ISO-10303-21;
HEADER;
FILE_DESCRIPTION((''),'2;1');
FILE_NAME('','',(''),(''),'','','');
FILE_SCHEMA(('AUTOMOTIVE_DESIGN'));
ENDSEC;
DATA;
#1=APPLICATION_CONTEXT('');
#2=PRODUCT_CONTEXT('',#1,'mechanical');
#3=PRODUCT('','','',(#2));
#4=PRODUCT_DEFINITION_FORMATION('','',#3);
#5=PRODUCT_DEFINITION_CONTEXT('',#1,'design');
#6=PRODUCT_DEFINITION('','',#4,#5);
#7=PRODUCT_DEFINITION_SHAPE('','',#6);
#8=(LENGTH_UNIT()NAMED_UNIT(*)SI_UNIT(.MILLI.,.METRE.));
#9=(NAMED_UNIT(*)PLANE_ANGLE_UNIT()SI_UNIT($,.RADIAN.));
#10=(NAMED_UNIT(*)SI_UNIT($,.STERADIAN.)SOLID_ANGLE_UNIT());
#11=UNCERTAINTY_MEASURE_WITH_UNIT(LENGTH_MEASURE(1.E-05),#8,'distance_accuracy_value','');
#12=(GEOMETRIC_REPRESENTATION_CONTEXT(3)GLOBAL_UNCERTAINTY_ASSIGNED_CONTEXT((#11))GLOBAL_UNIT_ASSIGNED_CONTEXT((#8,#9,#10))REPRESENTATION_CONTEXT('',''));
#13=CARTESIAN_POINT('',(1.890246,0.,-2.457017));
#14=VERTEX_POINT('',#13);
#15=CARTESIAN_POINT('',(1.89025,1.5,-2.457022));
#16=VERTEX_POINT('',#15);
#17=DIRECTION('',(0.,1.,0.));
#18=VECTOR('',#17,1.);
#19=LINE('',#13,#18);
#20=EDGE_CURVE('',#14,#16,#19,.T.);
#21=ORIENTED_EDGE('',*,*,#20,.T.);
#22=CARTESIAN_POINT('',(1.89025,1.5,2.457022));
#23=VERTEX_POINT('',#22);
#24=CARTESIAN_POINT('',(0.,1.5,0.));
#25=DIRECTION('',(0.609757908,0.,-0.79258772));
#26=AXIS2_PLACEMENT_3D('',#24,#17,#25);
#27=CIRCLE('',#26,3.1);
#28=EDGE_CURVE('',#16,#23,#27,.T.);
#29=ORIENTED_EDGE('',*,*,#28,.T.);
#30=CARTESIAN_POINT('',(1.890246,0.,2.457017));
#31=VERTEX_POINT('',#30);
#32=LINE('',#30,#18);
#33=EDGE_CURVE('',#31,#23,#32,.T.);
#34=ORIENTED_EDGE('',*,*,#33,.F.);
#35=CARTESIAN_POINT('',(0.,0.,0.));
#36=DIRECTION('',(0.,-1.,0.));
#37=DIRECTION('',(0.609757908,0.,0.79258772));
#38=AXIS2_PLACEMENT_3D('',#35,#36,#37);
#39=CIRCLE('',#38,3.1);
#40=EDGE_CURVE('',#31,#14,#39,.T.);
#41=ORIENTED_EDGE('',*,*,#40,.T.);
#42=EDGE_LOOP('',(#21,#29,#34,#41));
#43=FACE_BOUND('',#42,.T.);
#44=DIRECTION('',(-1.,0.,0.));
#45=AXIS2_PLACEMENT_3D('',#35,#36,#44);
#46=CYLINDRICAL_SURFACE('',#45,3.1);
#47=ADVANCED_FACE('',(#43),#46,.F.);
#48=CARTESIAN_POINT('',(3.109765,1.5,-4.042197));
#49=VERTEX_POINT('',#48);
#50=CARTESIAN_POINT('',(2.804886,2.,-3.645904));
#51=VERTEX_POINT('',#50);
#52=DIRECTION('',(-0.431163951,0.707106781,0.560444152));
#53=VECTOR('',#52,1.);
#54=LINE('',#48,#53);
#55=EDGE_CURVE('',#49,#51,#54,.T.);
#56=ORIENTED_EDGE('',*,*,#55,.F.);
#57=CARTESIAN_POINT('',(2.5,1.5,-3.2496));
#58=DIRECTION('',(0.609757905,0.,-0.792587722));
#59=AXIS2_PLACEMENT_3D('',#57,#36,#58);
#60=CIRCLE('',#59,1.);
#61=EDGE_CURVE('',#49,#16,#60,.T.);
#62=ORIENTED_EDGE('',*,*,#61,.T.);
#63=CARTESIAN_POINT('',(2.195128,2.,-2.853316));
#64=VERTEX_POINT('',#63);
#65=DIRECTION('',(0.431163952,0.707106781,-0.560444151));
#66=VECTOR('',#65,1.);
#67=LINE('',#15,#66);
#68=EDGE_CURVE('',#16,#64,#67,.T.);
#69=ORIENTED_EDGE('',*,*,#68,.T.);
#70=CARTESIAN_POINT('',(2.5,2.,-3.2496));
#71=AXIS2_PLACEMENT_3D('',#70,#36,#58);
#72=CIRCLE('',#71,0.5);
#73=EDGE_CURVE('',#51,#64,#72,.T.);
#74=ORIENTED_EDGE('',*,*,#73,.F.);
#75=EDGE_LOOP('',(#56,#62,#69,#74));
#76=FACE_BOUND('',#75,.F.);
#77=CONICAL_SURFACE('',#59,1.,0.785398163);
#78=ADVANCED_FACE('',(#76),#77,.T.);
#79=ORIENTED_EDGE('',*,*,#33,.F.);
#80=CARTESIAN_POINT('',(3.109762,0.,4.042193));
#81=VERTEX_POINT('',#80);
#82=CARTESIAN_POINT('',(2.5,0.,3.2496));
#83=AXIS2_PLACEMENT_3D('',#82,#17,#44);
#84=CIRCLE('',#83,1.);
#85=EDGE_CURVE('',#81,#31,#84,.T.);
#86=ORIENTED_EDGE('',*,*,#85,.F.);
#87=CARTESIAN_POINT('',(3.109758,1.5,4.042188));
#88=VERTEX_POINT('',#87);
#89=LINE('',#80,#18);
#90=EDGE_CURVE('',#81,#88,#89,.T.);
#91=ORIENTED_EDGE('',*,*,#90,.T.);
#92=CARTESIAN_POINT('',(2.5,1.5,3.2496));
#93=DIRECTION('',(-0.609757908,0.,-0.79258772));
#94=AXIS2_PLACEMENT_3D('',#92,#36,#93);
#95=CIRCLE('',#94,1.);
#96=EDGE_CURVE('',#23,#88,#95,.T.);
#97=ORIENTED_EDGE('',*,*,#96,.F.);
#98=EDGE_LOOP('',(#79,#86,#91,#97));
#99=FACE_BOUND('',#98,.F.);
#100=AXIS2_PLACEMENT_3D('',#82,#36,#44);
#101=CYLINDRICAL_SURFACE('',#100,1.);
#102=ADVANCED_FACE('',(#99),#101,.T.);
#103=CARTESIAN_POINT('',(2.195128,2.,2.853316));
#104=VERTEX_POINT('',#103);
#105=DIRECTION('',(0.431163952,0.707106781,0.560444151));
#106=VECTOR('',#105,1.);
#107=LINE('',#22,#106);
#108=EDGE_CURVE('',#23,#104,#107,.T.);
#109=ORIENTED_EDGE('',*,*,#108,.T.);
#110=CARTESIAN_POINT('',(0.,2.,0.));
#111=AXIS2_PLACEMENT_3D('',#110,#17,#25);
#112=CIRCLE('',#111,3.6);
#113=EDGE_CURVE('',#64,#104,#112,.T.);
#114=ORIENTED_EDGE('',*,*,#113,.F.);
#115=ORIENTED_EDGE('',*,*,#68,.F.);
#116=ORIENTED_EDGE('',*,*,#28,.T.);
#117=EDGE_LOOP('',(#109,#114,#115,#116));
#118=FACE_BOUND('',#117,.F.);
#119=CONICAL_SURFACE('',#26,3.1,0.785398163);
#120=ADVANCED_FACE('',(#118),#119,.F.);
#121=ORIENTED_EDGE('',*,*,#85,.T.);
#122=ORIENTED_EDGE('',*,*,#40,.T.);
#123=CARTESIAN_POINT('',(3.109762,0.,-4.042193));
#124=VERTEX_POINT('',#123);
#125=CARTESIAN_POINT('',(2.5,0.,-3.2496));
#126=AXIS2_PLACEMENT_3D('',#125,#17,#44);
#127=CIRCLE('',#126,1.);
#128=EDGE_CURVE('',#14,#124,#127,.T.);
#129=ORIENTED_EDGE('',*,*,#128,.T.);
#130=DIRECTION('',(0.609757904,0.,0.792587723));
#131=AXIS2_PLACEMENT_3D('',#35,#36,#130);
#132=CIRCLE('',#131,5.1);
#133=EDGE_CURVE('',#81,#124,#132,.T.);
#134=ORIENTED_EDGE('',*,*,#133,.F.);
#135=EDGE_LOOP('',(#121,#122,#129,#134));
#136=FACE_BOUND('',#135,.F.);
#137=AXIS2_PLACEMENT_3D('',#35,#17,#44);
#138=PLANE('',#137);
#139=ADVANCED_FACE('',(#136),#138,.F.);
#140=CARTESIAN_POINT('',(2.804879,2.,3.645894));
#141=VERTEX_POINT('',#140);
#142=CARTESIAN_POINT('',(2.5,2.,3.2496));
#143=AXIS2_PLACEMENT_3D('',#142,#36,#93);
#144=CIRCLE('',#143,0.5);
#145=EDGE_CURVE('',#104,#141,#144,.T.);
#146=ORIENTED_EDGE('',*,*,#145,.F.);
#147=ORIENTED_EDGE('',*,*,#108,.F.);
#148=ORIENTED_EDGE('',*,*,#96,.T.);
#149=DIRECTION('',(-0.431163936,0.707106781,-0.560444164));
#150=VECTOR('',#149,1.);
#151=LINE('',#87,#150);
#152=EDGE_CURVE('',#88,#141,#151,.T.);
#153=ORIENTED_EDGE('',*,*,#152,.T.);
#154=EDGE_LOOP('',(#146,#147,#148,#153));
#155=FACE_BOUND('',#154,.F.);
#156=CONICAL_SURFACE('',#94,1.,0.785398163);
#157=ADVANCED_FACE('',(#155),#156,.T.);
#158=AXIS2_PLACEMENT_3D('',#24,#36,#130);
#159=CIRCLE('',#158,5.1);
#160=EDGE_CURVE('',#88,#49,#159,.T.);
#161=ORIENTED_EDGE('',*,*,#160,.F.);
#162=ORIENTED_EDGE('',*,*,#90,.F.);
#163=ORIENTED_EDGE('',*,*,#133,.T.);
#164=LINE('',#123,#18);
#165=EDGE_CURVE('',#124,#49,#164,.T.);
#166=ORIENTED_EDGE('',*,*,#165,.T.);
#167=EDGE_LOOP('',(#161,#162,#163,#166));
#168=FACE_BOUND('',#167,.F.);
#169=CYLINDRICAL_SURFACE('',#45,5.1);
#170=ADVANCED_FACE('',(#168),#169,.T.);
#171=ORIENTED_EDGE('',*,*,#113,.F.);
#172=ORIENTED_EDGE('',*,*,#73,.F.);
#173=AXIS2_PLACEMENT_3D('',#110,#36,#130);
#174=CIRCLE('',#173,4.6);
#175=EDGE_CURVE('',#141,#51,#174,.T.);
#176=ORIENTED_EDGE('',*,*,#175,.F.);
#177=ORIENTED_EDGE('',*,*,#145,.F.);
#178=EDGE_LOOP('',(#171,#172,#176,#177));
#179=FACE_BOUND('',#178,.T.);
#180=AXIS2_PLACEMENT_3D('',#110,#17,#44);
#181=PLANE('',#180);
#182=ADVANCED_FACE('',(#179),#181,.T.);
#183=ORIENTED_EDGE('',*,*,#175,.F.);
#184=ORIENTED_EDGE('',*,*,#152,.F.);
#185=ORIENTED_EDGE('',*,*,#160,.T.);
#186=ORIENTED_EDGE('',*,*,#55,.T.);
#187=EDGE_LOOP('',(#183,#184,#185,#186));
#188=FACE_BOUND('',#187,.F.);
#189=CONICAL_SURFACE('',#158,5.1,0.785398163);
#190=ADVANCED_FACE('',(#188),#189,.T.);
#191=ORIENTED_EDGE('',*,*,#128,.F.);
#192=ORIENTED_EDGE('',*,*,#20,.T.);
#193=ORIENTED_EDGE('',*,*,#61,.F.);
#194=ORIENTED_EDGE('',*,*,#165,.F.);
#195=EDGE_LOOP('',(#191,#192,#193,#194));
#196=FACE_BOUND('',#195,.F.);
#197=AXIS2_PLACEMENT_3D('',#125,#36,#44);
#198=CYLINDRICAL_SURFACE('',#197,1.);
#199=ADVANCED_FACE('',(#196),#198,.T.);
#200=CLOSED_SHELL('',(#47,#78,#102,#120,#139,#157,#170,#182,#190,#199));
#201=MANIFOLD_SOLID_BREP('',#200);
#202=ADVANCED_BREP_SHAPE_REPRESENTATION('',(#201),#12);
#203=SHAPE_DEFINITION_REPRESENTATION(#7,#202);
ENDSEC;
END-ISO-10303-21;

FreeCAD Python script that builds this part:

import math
import FreeCAD as App
import Part
import Sketcher
from FreeCAD import Vector
Q = App.Units.Quantity


def edges_at(feature, points):
    """Names of the edges that pass closest to the given points."""
    edges = feature.Shape.Edges
    near = lambda p: min(range(len(edges)), key=lambda i: edges[i].distToShape(Part.Vertex(*p))[0])
    return sorted({f"Edge{near(p) + 1}" for p in points})

doc = App.newDocument("Part")
body = doc.addObject("PartDesign::Body", "Body")

sketch1 = body.newObject("Sketcher::SketchObject", "Sketch")
sketch1.AttachmentSupport = (doc.getObject("XZ_Plane"), [""])
sketch1.MapMode = "FlatFace"
sketch1.addGeometry([
    Part.ArcOfCircle(Part.Circle(Vector(0, 0, 0), Vector(0, 0, 1), 3.1), math.radians(52), math.radians(308)),
    Part.ArcOfCircle(Part.Circle(Vector(2.5, -3.2, 0), Vector(0, 0, 1), 1), math.radians(-52), math.radians(128)),
    Part.ArcOfCircle(Part.Circle(Vector(0, 0, 0), Vector(0, 0, 1), 5.1), math.radians(52), math.radians(308)),
    Part.ArcOfCircle(Part.Circle(Vector(2.5, 3.2, 0), Vector(0, 0, 1), 1), math.radians(-128), math.radians(52)),
], False)
sketch1.addConstraint([
    Sketcher.Constraint("Tangent", 0, 2, 1, 2),
    Sketcher.Constraint("Tangent", 1, 1, 2, 2),
    Sketcher.Constraint("Tangent", 2, 1, 3, 2),
    Sketcher.Constraint("Tangent", 3, 1, 0, 1),
    Sketcher.Constraint("Coincident", 0, 3, -1, 1),
    Sketcher.Constraint("Coincident", 2, 3, -1, 1),
    Sketcher.Constraint("Vertical", 1, 3, 3, 3),
    Sketcher.Constraint("Radius", 1, Q("1 mm")),
    Sketcher.Constraint("Radius", 0, Q("3.1 mm")),
    Sketcher.Constraint("DistanceX", -1, 1, 1, 3, Q("2.5 mm")),
])
pad1 = body.newObject("PartDesign::Pad", "Pad")
pad1.Profile = sketch1
pad1.Length = 2
pad1.Reversed = True
doc.recompute()

chamfer = body.newObject("PartDesign::Chamfer", "Chamfer")
chamfer.Base = (pad1, edges_at(pad1, [
    (-3.1, 2, 0),
    (3.293, 2, -2.64),
    (-5.1, 2, 0),
    (3.293, 2, 2.64),
]))
chamfer.Size = 0.5

doc.recompute()
